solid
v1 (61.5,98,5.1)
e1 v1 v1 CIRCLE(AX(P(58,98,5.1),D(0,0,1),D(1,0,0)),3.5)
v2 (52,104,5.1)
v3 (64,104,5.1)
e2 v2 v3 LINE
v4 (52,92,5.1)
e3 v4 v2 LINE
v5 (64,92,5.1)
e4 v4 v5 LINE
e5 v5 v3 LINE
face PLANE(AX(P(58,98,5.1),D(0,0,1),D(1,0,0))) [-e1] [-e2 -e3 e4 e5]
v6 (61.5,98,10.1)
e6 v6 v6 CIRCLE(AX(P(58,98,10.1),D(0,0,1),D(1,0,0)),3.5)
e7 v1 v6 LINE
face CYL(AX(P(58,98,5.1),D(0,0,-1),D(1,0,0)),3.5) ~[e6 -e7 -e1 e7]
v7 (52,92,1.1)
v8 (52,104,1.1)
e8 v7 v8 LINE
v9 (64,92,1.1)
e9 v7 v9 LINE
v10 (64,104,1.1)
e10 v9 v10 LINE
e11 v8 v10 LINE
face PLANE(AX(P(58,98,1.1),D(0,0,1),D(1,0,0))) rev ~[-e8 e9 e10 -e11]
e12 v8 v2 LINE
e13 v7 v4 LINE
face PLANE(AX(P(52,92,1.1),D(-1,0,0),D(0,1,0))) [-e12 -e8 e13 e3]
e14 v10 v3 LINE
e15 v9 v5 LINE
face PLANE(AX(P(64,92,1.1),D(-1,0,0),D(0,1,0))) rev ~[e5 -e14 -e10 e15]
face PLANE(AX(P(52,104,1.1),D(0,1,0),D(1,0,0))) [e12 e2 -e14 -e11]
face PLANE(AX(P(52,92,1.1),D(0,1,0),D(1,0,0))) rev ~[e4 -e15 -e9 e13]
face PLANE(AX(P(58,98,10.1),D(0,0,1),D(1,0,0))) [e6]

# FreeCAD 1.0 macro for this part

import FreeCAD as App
import Part
import Sketcher

V = App.Vector


def add_polygon(sketch, points):
    """Adds a closed chain of lines whose ends are joined by coincident constraints."""
    first, n = sketch.GeometryCount, len(points)
    for a, b in zip(points, points[1:] + points[:1]):
        sketch.addGeometry(Part.LineSegment(App.Vector(*a, 0), App.Vector(*b, 0)), False)
    for i in range(n):
        sketch.addConstraint(Sketcher.Constraint("Coincident", first + i, 2, first + (i + 1) % n, 1))

doc = App.newDocument("Part")
body = doc.addObject("PartDesign::Body", "Body")

# Sketch on XY plane
sketch1 = doc.addObject("Sketcher::SketchObject", "Sketch")
body.addObject(sketch1)
sketch1.AttachmentSupport = (doc.XY_Plane, [""])
sketch1.MapMode = "FlatFace"
add_polygon(sketch1, [(0, 12), (0, 0), (12, 0), (12, 12)])  # lines 0-3
sketch1.addConstraint(Sketcher.Constraint("Vertical", 0))
sketch1.addConstraint(Sketcher.Constraint("Horizontal", 1))
sketch1.addConstraint(Sketcher.Constraint("Vertical", 2))
sketch1.addConstraint(Sketcher.Constraint("Horizontal", 3))
sketch1.addConstraint(Sketcher.Constraint("Coincident", 0, 2, -1, 1))
sketch1.addConstraint(Sketcher.Constraint("Equal", 3, 0))
sketch1.addConstraint(Sketcher.Constraint("DistanceX", 1, 1, 1, 2, 12.0))
pad1 = doc.addObject("PartDesign::Pad", "Pad")
body.addObject(pad1)
pad1.Profile = sketch1
pad1.Length = 4
body2 = doc.addObject("PartDesign::Body", "Body001")

# Sketch on XY plane
sketch2 = doc.addObject("Sketcher::SketchObject", "Sketch001")
body2.addObject(sketch2)
sketch2.AttachmentSupport = (doc.getObject("XY_Plane001"), [""])
sketch2.MapMode = "FlatFace"
sketch2.AttachmentOffset = App.Placement(V(0, 0, 4), App.Rotation())
sketch2.addGeometry(Part.Circle(V(6, 6, 0), V(0, 0, 1), 3.5), False)
sketch2.addConstraint(Sketcher.Constraint("Diameter", 0, 7.0))
sketch2.addConstraint(Sketcher.Constraint("DistanceX", -1, 1, 0, 3, 6.0))
sketch2.addConstraint(Sketcher.Constraint("DistanceY", -1, 1, 0, 3, 6.0))
pad2 = doc.addObject("PartDesign::Pad", "Pad001")
body2.addObject(pad2)
pad2.Profile = sketch2
pad2.Length = 5
doc.recompute()

boolean = doc.addObject("PartDesign::Boolean", "Boolean")
body2.addObject(boolean)
boolean.Type = "Fuse"
boolean.addObjects([body])
body3 = doc.addObject("PartDesign::Body", "Body002")
doc.recompute()

body2.Placement = App.Placement(V(52, 92, 1.1), App.Rotation(V(0, 0, 1), 0))
boolean2 = doc.addObject("PartDesign::Boolean", "Boolean001")
body3.addObject(boolean2)
boolean2.Type = "Fuse"
boolean2.addObjects([body2])

doc.recompute()
